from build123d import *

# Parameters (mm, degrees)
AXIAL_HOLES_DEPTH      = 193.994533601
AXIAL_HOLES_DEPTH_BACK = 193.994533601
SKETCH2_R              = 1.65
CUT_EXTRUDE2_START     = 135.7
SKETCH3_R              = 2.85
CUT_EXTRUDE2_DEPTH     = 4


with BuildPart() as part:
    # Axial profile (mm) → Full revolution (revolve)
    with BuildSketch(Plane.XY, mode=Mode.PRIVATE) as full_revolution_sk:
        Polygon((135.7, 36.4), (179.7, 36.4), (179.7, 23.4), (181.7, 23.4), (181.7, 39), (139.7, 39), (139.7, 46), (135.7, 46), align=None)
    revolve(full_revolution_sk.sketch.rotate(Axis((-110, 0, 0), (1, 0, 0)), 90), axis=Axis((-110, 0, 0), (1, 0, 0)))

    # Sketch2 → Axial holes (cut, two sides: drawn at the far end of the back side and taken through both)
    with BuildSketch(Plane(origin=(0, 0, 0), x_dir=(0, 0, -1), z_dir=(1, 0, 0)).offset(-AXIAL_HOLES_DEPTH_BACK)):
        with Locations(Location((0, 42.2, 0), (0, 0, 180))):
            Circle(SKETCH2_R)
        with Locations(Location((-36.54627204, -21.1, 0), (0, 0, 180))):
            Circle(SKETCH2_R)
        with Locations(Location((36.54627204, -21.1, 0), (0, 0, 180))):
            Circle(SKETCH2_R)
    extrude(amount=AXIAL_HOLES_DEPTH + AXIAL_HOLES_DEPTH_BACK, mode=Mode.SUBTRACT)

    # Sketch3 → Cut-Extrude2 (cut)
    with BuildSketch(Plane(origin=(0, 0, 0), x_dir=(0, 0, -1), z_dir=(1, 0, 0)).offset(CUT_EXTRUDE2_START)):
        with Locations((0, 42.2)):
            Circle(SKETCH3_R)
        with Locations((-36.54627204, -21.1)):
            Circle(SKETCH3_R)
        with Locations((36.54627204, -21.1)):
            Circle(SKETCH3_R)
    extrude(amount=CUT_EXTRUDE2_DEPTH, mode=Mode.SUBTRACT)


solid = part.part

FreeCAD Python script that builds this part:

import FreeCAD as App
import Part
import Sketcher

V = App.Vector

doc = App.newDocument("Part")
body = doc.addObject("PartDesign::Body", "Body")

# Sketch on XY plane
sketch1 = body.newObject("Sketcher::SketchObject", "Sketch")
sketch1.AttachmentSupport = (doc.getObject("XY_Plane"), [""])
sketch1.MapMode = "FlatFace"
sketch1.addGeometry(Part.LineSegment(V(135.7, 36.4, 0), V(179.7, 36.4, 0)), False)
sketch1.addGeometry(Part.LineSegment(V(179.7, 36.4, 0), V(179.7, 23.4, 0)), False)
sketch1.addGeometry(Part.LineSegment(V(179.7, 23.4, 0), V(181.7, 23.4, 0)), False)
sketch1.addGeometry(Part.LineSegment(V(181.7, 23.4, 0), V(181.7, 39, 0)), False)
sketch1.addGeometry(Part.LineSegment(V(181.7, 39, 0), V(139.7, 39, 0)), False)
sketch1.addGeometry(Part.LineSegment(V(139.7, 39, 0), V(139.7, 46, 0)), False)
sketch1.addGeometry(Part.LineSegment(V(139.7, 46, 0), V(135.7, 46, 0)), False)
sketch1.addGeometry(Part.LineSegment(V(135.7, 46, 0), V(135.7, 36.4, 0)), False)
sketch1.addConstraint(Sketcher.Constraint("Coincident", 0, 2, 1, 1))
sketch1.addConstraint(Sketcher.Constraint("Coincident", 1, 2, 2, 1))
sketch1.addConstraint(Sketcher.Constraint("Coincident", 2, 2, 3, 1))
sketch1.addConstraint(Sketcher.Constraint("Coincident", 3, 2, 4, 1))
sketch1.addConstraint(Sketcher.Constraint("Coincident", 4, 2, 5, 1))
sketch1.addConstraint(Sketcher.Constraint("Coincident", 5, 2, 6, 1))
sketch1.addConstraint(Sketcher.Constraint("Coincident", 6, 2, 7, 1))
sketch1.addConstraint(Sketcher.Constraint("Coincident", 7, 2, 0, 1))
sketch1.addConstraint(Sketcher.Constraint("Horizontal", 0))
sketch1.addConstraint(Sketcher.Constraint("Vertical", 1))
sketch1.addConstraint(Sketcher.Constraint("Horizontal", 2))
sketch1.addConstraint(Sketcher.Constraint("Vertical", 3))
sketch1.addConstraint(Sketcher.Constraint("Horizontal", 4))
sketch1.addConstraint(Sketcher.Constraint("Vertical", 5))
sketch1.addConstraint(Sketcher.Constraint("Horizontal", 6))
sketch1.addConstraint(Sketcher.Constraint("Vertical", 7))
sketch1.addConstraint(Sketcher.Constraint("DistanceX", 0, 1, 0, 2, 44.0))
sketch1.addConstraint(Sketcher.Constraint("DistanceX", 2, 1, 2, 2, 2.0))
sketch1.addConstraint(Sketcher.Constraint("DistanceX", 4, 2, 4, 1, 42.0))
sketch1.addConstraint(Sketcher.Constraint("DistanceY", 1, 2, 1, 1, 13.0))
sketch1.addConstraint(Sketcher.Constraint("DistanceY", 5, 1, 5, 2, 7.0))
sketch1.addConstraint(Sketcher.Constraint("DistanceY", 3, 1, 3, 2, 15.6))
sketch1.addConstraint(Sketcher.Constraint("DistanceY", -1, 1, 3, 2, 39.0))
sketch1.addConstraint(Sketcher.Constraint("DistanceX", -1, 1, 0, 2, 179.7))
revolution = body.newObject("PartDesign::Revolution", "Revolution")
revolution.Profile = sketch1
revolution.ReferenceAxis = (sketch1, ["H_Axis"])
revolution.Angle = 360

# Sketch on YZ plane
sketch2 = body.newObject("Sketcher::SketchObject", "Sketch001")
sketch2.AttachmentSupport = (doc.getObject("YZ_Plane"), [""])
sketch2.MapMode = "FlatFace"
sketch2.addGeometry(Part.Circle(V(42.2, 0, 0), V(0, 0, 1), 1.6), False)
sketch2.addGeometry(Part.Circle(V(-21.1, 36.5, 0), V(0, 0, 1), 1.6), False)
sketch2.addGeometry(Part.Circle(V(-21.1, -36.5, 0), V(0, 0, 1), 1.6), False)
sketch2.addConstraint(Sketcher.Constraint("Equal", 0, 1))
sketch2.addConstraint(Sketcher.Constraint("Equal", 1, 2))
sketch2.addConstraint(Sketcher.Constraint("Symmetric", 1, 3, 2, 3, -1))
sketch2.addConstraint(Sketcher.Constraint("PointOnObject", 0, 3, -1))
sketch2.addConstraint(Sketcher.Constraint("Diameter", 0, 3.3))
sketch2.addConstraint(Sketcher.Constraint("DistanceX", -1, 1, 0, 3, 42.2))
sketch2.addConstraint(Sketcher.Constraint("DistanceX", 1, 3, -1, 1, 21.1))
sketch2.addConstraint(Sketcher.Constraint("DistanceY", -1, 1, 1, 3, 36.546272))
pocket1 = body.newObject("PartDesign::Pocket", "Pocket")
pocket1.Profile = sketch2
pocket1.Type = "ThroughAll"
pocket1.Midplane = True

# Sketch on YZ plane
sketch3 = body.newObject("Sketcher::SketchObject", "Sketch002")
sketch3.AttachmentSupport = (doc.getObject("YZ_Plane"), [""])
sketch3.MapMode = "FlatFace"
sketch3.AttachmentOffset = App.Placement(V(0, 0, 135.7), App.Rotation())
sketch3.addGeometry(Part.Circle(V(42.2, 0, 0), V(0, 0, 1), 2.9), False)
sketch3.addGeometry(Part.Circle(V(-21.1, 36.5, 0), V(0, 0, 1), 2.9), False)
sketch3.addGeometry(Part.Circle(V(-21.1, -36.5, 0), V(0, 0, 1), 2.9), False)
sketch3.addConstraint(Sketcher.Constraint("Equal", 0, 1))
sketch3.addConstraint(Sketcher.Constraint("Equal", 1, 2))
sketch3.addConstraint(Sketcher.Constraint("Symmetric", 1, 3, 2, 3, -1))
sketch3.addConstraint(Sketcher.Constraint("PointOnObject", 0, 3, -1))
sketch3.addConstraint(Sketcher.Constraint("Diameter", 0, 5.7))
sketch3.addConstraint(Sketcher.Constraint("DistanceX", -1, 1, 0, 3, 42.2))
sketch3.addConstraint(Sketcher.Constraint("DistanceX", 1, 3, -1, 1, 21.1))
sketch3.addConstraint(Sketcher.Constraint("DistanceY", -1, 1, 1, 3, 36.546272))
pocket2 = body.newObject("PartDesign::Pocket", "Pocket001")
pocket2.Profile = sketch3
pocket2.Length = 4
pocket2.Reversed = True

doc.recompute()
